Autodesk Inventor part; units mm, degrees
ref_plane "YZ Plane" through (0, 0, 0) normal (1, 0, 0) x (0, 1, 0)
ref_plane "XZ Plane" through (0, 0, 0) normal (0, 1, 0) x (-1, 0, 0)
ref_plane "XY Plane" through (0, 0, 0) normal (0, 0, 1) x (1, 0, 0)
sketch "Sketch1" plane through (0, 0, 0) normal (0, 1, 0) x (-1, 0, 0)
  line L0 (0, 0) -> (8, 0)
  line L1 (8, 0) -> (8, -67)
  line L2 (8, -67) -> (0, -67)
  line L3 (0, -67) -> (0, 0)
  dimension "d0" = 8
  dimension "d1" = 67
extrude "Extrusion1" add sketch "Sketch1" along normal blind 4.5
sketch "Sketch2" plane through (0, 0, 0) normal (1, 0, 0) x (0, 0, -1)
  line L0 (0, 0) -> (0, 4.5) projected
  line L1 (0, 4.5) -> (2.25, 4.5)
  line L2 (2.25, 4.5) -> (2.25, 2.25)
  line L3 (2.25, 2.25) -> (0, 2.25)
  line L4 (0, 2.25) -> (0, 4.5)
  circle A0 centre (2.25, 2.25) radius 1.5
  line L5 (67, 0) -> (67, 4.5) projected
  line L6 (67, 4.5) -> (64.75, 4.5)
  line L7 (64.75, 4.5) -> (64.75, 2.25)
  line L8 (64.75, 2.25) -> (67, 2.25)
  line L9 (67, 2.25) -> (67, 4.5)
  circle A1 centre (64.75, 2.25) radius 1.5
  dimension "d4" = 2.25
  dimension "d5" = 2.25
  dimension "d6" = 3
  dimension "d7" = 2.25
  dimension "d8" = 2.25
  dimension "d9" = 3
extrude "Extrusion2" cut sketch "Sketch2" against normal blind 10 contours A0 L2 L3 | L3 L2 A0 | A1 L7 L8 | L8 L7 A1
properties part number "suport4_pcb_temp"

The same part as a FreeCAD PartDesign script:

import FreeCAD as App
import Part
import Sketcher
Q = App.Units.Quantity


def add_polygon(sketch, points):
    """Adds a closed chain of lines whose ends are joined by coincident constraints."""
    first, n = sketch.GeometryCount, len(points)
    for a, b in zip(points, points[1:] + points[:1]):
        sketch.addGeometry(Part.LineSegment(App.Vector(*a, 0), App.Vector(*b, 0)), False)
    for i in range(n):
        sketch.addConstraint(Sketcher.Constraint("Coincident", first + i, 2, first + (i + 1) % n, 1))

doc = App.newDocument("Part")
body = doc.addObject("PartDesign::Body", "Body")

sketch1 = doc.addObject("Sketcher::SketchObject", "Sketch")
body.addObject(sketch1)
sketch1.AttachmentSupport = (doc.XZ_Plane, [""])
sketch1.MapMode = "FlatFace"
add_polygon(sketch1, [(-8, 0), (0, 0), (0, -67), (-8, -67)])
sketch1.addConstraint([
    Sketcher.Constraint("Horizontal", 0),
    Sketcher.Constraint("Vertical", 1),
    Sketcher.Constraint("Horizontal", 2),
    Sketcher.Constraint("Vertical", 3),
    Sketcher.Constraint("Coincident", 0, 2, -1, 1),
    Sketcher.Constraint("DistanceX", 0, 1, 0, 2, Q("8 mm")),
    Sketcher.Constraint("DistanceY", 1, 2, 1, 1, Q("67 mm")),
])
pad1 = doc.addObject("PartDesign::Pad", "Pad")
body.addObject(pad1)
pad1.Profile = sketch1
pad1.Length = 4.5
pad1.Reversed = True

sketch2 = doc.addObject("Sketcher::SketchObject", "Sketch001")
body.addObject(sketch2)
sketch2.AttachmentSupport = (doc.YZ_Plane, [""])
sketch2.MapMode = "FlatFace"
sketch2.addGeometry([
    Part.Circle(App.Vector(2.25, -2.25, 0), App.Vector(0, 0, 1), 1.5),
    Part.Circle(App.Vector(2.25, -64.75, 0), App.Vector(0, 0, 1), 1.5),
], False)
sketch2.addConstraint([
    Sketcher.Constraint("Equal", 0, 1),
    Sketcher.Constraint("Vertical", 0, 3, 1, 3),
    Sketcher.Constraint("Diameter", 0, Q("3 mm")),
    Sketcher.Constraint("DistanceX", -1, 1, 0, 3, Q("2.25 mm")),
    Sketcher.Constraint("DistanceY", 0, 3, -1, 1, Q("2.25 mm")),
    Sketcher.Constraint("DistanceY", 1, 3, 0, 3, Q("62.5 mm")),
])
pocket1 = doc.addObject("PartDesign::Pocket", "Pocket")
body.addObject(pocket1)
pocket1.Profile = sketch2
pocket1.Length = 10

doc.recompute()
